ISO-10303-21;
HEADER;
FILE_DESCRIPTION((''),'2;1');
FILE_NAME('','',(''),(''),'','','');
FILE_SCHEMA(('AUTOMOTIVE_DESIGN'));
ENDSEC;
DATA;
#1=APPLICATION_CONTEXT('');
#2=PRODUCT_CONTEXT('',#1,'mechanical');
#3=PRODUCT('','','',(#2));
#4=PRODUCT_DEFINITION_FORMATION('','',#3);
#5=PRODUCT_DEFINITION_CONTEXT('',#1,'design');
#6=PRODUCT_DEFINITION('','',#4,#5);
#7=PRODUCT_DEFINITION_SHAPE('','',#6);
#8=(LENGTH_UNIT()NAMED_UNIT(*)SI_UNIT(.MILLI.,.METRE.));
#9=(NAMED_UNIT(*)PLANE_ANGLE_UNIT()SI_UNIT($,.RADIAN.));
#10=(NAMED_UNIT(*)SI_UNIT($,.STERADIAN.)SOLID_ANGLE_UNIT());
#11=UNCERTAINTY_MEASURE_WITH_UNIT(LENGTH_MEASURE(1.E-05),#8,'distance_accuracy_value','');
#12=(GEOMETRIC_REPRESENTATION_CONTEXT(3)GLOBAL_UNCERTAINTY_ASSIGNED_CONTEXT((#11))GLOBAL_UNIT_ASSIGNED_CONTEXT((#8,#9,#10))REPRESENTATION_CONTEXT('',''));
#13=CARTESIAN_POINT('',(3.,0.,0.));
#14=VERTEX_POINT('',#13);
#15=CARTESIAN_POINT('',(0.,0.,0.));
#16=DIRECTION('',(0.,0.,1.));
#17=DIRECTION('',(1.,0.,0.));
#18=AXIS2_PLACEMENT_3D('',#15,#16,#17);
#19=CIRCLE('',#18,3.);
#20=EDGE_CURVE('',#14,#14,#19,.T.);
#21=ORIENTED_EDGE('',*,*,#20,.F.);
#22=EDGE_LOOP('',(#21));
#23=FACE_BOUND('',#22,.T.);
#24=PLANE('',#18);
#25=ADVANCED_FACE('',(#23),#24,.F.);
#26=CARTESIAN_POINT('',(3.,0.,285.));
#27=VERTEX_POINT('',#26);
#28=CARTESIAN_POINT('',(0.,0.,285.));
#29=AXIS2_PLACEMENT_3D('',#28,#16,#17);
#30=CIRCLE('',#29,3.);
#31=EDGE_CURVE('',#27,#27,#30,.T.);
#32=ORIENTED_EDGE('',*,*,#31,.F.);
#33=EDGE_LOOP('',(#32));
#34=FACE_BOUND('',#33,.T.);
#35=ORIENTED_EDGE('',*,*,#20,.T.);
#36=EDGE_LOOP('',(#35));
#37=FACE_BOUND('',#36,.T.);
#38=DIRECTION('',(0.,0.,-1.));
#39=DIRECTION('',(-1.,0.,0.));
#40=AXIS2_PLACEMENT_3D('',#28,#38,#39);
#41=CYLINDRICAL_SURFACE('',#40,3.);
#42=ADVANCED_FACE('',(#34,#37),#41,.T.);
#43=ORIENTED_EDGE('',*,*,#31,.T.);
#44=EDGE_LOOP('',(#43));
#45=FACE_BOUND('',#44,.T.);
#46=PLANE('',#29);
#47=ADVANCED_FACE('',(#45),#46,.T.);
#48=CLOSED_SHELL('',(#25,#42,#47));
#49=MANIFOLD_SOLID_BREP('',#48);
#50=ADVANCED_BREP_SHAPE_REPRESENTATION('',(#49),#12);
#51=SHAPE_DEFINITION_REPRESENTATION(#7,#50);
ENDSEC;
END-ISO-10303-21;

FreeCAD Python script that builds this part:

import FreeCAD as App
import Part
import Sketcher
from FreeCAD import Vector

doc = App.newDocument("Part")
params = doc.addObject("Spreadsheet::Sheet", "Params")
for row, (alias, value) in enumerate([
    ("sketch1_diameter", "6 mm"),
    ("pad1_length", "285 mm"),
], start=1):
    params.set(f"A{row}", alias)
    params.set(f"B{row}", "=" + value)
    params.setAlias(f"B{row}", alias)

body = doc.addObject("PartDesign::Body", "Body")

# Sketch on XY plane
sketch1 = body.newObject("Sketcher::SketchObject", "Sketch")
sketch1.AttachmentSupport = (doc.getObject("XY_Plane"), [""])
sketch1.MapMode = "FlatFace"
sketch1.addGeometry(Part.Circle(Vector(0, 0, 0), Vector(0, 0, 1), 3), False)
sketch1.addConstraint([
    Sketcher.Constraint("Coincident", 0, 3, -1, 1),
    Sketcher.Constraint("Diameter", 0, 6.0),
])
sketch1.setExpression("Constraints[1]", "Params.sketch1_diameter")
pad1 = body.newObject("PartDesign::Pad", "Pad")
pad1.Profile = sketch1
pad1.setExpression("Length", "Params.pad1_length")

doc.recompute()
